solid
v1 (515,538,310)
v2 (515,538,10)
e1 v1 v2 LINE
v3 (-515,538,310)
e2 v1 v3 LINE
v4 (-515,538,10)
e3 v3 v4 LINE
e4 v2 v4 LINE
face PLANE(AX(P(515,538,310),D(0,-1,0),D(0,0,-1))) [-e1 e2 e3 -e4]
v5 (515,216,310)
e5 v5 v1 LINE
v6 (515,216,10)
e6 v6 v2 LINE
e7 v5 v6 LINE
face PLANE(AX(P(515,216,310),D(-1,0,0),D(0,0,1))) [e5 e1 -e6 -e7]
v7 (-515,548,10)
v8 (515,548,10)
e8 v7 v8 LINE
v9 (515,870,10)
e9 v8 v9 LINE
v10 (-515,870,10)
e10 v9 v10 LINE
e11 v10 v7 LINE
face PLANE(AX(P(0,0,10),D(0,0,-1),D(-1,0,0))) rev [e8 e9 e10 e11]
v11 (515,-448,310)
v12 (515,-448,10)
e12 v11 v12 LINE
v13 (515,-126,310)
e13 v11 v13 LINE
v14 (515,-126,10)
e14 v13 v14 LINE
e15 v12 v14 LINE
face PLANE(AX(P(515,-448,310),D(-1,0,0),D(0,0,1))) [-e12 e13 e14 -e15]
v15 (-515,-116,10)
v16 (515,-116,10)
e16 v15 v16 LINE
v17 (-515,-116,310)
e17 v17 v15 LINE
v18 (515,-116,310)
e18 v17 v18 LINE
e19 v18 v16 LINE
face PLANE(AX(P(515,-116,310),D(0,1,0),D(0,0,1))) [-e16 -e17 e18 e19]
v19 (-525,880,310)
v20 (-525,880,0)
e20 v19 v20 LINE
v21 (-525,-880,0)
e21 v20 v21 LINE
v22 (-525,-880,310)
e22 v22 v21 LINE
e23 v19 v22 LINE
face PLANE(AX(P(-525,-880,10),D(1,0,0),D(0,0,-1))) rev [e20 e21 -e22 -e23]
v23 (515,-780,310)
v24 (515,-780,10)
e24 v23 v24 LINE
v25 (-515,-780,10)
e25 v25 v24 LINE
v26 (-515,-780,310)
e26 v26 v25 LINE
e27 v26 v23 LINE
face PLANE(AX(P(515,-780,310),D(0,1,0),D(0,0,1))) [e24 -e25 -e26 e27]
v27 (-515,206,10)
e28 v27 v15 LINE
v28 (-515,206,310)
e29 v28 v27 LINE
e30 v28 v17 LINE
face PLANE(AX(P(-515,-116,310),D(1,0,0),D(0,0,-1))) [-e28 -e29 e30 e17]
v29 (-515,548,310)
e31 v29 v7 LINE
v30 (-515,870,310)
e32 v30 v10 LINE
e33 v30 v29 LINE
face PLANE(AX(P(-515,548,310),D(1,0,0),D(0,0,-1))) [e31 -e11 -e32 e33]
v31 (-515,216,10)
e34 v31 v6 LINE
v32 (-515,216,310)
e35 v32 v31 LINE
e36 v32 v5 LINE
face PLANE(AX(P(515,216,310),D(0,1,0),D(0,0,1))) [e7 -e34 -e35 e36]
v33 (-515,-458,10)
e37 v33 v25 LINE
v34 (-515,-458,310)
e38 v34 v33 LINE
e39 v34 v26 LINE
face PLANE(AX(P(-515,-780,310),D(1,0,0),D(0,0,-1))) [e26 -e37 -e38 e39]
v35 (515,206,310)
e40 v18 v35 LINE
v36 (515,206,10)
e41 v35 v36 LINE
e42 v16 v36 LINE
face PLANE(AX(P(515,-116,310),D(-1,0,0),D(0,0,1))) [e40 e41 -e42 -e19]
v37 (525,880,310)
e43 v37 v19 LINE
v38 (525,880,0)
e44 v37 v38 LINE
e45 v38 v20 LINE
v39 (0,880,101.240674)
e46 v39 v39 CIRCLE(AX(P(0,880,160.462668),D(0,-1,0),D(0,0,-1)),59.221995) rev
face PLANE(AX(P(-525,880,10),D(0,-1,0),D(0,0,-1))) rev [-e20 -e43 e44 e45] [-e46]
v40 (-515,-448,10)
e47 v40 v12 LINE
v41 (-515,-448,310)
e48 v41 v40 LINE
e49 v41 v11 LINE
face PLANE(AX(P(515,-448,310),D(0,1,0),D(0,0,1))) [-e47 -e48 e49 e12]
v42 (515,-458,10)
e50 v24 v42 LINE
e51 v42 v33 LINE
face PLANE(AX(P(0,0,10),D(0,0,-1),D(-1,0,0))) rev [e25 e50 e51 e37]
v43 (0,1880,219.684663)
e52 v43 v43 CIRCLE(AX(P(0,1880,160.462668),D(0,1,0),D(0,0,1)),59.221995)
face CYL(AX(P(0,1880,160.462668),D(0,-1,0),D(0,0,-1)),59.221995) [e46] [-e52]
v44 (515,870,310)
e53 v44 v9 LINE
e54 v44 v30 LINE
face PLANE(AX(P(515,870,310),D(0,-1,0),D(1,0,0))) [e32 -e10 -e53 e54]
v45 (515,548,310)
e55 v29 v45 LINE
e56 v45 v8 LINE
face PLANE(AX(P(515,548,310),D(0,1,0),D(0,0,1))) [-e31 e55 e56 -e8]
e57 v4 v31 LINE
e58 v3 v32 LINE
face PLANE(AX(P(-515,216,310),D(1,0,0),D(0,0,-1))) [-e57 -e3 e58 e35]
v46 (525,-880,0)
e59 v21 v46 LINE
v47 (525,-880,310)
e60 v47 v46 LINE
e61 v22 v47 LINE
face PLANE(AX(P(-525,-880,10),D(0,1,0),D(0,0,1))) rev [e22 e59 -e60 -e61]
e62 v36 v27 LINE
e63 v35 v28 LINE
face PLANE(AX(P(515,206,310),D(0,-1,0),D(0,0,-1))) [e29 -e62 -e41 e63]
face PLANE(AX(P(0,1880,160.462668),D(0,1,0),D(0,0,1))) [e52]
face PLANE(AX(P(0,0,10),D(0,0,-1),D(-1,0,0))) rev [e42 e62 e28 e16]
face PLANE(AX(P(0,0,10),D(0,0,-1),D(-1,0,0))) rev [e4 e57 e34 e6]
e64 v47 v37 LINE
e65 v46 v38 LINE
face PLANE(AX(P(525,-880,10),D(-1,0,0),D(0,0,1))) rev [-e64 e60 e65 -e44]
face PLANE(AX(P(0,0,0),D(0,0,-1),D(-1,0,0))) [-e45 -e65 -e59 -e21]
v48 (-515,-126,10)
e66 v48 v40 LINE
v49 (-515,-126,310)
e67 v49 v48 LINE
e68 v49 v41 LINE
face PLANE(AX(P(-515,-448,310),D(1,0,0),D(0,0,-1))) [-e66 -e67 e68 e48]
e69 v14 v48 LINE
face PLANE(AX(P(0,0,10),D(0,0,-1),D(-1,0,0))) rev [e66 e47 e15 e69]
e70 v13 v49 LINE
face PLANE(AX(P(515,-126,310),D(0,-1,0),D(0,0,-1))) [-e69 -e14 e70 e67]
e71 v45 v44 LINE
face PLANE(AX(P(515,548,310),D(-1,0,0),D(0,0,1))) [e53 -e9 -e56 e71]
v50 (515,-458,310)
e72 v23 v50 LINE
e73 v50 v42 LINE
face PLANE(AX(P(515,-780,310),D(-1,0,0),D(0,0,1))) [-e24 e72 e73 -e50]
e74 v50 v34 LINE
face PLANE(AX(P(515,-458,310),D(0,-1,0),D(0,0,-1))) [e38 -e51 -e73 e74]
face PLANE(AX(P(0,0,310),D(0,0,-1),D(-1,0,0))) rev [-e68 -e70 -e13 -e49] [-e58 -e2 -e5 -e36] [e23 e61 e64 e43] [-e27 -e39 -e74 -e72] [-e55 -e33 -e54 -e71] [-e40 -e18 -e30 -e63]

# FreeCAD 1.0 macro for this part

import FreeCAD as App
import Part
import Sketcher

V = App.Vector


def add_polygon(sketch, points):
    """Adds a closed chain of lines whose ends are joined by coincident constraints."""
    first, n = sketch.GeometryCount, len(points)
    for a, b in zip(points, points[1:] + points[:1]):
        sketch.addGeometry(Part.LineSegment(App.Vector(*a, 0), App.Vector(*b, 0)), False)
    for i in range(n):
        sketch.addConstraint(Sketcher.Constraint("Coincident", first + i, 2, first + (i + 1) % n, 1))

doc = App.newDocument("Part")
body = doc.addObject("PartDesign::Body", "Body")

sketch1 = body.newObject("Sketcher::SketchObject", "Sketch")
sketch1.AttachmentSupport = (doc.getObject("XY_Plane"), [""])
sketch1.MapMode = "FlatFace"
add_polygon(sketch1, [(-525, 880), (-525, -880), (525, -880), (525, 880)])
sketch1.addConstraint([
    Sketcher.Constraint("Vertical", 0),
    Sketcher.Constraint("Horizontal", 1),
    Sketcher.Constraint("Vertical", 2),
    Sketcher.Constraint("Horizontal", 3),
    Sketcher.Constraint("Symmetric", 0, 2, 2, 2, -1, 1),
    Sketcher.Constraint("DistanceX", 1, 1, 1, 2, 1050.0),
    Sketcher.Constraint("DistanceY", 0, 2, 0, 1, 1760.0),
])
pad1 = body.newObject("PartDesign::Pad", "Pad")
pad1.Profile = sketch1
pad1.Length = 10

sketch2 = body.newObject("Sketcher::SketchObject", "Sketch001")
sketch2.AttachmentSupport = (doc.getObject("XY_Plane"), [""])
sketch2.MapMode = "FlatFace"
sketch2.AttachmentOffset = App.Placement(V(0, 0, 10), App.Rotation())
add_polygon(sketch2, [(-525, 880), (-525, -880), (525, -880), (525, 880)])
add_polygon(sketch2, [(515, -780), (-515, -780), (-515, -458), (515, -458)])
add_polygon(sketch2, [(515, -448), (-515, -448), (-515, -126), (515, -126)])
add_polygon(sketch2, [(515, -116), (-515, -116), (-515, 206), (515, 206)])
add_polygon(sketch2, [(515, 216), (-515, 216), (-515, 538), (515, 538)])
add_polygon(sketch2, [(515, 548), (-515, 548), (-515, 870), (515, 870)])
sketch2.addConstraint([
    Sketcher.Constraint("Vertical", 0),
    Sketcher.Constraint("Horizontal", 1),
    Sketcher.Constraint("Vertical", 2),
    Sketcher.Constraint("Horizontal", 3),
    Sketcher.Constraint("Horizontal", 4),
    Sketcher.Constraint("Vertical", 5),
    Sketcher.Constraint("Horizontal", 6),
    Sketcher.Constraint("Vertical", 7),
    Sketcher.Constraint("Horizontal", 8),
    Sketcher.Constraint("Vertical", 9),
    Sketcher.Constraint("Horizontal", 10),
    Sketcher.Constraint("Vertical", 11),
    Sketcher.Constraint("Horizontal", 12),
    Sketcher.Constraint("Vertical", 13),
    Sketcher.Constraint("Horizontal", 14),
    Sketcher.Constraint("Vertical", 15),
    Sketcher.Constraint("Horizontal", 16),
    Sketcher.Constraint("Vertical", 17),
    Sketcher.Constraint("Horizontal", 18),
    Sketcher.Constraint("Vertical", 19),
    Sketcher.Constraint("Horizontal", 20),
    Sketcher.Constraint("Vertical", 21),
    Sketcher.Constraint("Horizontal", 22),
    Sketcher.Constraint("Vertical", 23),
    Sketcher.Constraint("Symmetric", 0, 2, 2, 2, -1, 1),
    Sketcher.Constraint("Vertical", 5, 2, 8, 2),
    Sketcher.Constraint("Vertical", 7, 2, 10, 2),
    Sketcher.Constraint("Vertical", 9, 2, 12, 2),
    Sketcher.Constraint("Vertical", 11, 2, 14, 2),
    Sketcher.Constraint("Vertical", 13, 2, 16, 2),
    Sketcher.Constraint("Vertical", 15, 2, 18, 2),
    Sketcher.Constraint("Vertical", 17, 2, 20, 2),
    Sketcher.Constraint("Vertical", 19, 2, 22, 2),
    Sketcher.Constraint("Equal", 7, 9),
    Sketcher.Constraint("Equal", 11, 13),
    Sketcher.Constraint("Equal", 15, 17),
    Sketcher.Constraint("Equal", 19, 21),
    Sketcher.Constraint("DistanceX", 1, 1, 1, 2, 1050.0),
    Sketcher.Constraint("DistanceX", 4, 2, 4, 1, 1030.0),
    Sketcher.Constraint("DistanceY", 0, 2, 0, 1, 1760.0),
    Sketcher.Constraint("DistanceY", 5, 1, 5, 2, 322.0),
    Sketcher.Constraint("DistanceX", 4, 2, -1, 1, 515.0),
    Sketcher.Constraint("DistanceY", 4, 2, -1, 1, 780.0),
    Sketcher.Constraint("DistanceY", 8, 2, -1, 1, 448.0),
    Sketcher.Constraint("DistanceY", 12, 2, -1, 1, 116.0),
    Sketcher.Constraint("DistanceY", -1, 1, 16, 2, 216.0),
    Sketcher.Constraint("DistanceY", -1, 1, 20, 2, 548.0),
])
pad2 = body.newObject("PartDesign::Pad", "Pad001")
pad2.Profile = sketch2
pad2.Length = 300

sketch3 = body.newObject("Sketcher::SketchObject", "Sketch002")
sketch3.AttachmentSupport = (doc.getObject("XZ_Plane"), [""])
sketch3.MapMode = "FlatFace"
sketch3.AttachmentOffset = App.Placement(V(0, 0, -880), App.Rotation())
sketch3.addGeometry(Part.Circle(V(0, 160, 0), V(0, 0, 1), 59), False)
sketch3.addConstraint([
    Sketcher.Constraint("PointOnObject", 0, 3, -2),
    Sketcher.Constraint("Diameter", 0, 118.443989),
    Sketcher.Constraint("DistanceY", -1, 1, 0, 3, 160.462668),
])
pad3 = body.newObject("PartDesign::Pad", "Pad002")
pad3.Profile = sketch3
pad3.Length = 1000
pad3.Reversed = True

doc.recompute()
